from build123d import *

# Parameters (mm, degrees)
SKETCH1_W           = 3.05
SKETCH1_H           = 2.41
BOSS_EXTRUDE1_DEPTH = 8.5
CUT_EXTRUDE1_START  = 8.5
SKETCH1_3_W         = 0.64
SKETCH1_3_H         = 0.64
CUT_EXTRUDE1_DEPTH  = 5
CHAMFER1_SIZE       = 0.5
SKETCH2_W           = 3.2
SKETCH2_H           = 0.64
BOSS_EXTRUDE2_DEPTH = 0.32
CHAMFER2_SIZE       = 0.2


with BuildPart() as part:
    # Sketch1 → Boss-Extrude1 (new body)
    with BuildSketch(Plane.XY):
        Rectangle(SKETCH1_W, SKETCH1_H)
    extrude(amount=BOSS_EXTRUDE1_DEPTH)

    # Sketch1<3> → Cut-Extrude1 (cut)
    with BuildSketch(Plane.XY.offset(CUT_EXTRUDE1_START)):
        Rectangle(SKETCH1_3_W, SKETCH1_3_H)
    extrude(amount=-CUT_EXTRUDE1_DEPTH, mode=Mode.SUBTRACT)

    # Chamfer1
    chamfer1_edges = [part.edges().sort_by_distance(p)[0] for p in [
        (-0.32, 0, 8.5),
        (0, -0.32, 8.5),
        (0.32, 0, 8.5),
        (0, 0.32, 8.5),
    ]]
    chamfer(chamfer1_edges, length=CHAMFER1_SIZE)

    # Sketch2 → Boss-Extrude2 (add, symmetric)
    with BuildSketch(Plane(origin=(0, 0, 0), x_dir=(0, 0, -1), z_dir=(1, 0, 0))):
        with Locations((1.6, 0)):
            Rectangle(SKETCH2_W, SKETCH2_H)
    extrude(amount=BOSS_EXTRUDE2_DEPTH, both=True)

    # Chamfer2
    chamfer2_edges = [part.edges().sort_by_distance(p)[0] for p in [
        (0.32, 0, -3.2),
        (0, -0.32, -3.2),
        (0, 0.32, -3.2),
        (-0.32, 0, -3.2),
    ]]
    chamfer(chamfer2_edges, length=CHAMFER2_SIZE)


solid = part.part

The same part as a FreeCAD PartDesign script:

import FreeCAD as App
import Part
import Sketcher

V = App.Vector
Q = App.Units.Quantity


def edges_at(feature, points):
    """Names of the edges that pass closest to the given points."""
    edges = feature.Shape.Edges
    near = lambda p: min(range(len(edges)), key=lambda i: edges[i].distToShape(Part.Vertex(*p))[0])
    return sorted({f"Edge{near(p) + 1}" for p in points})


def add_polygon(sketch, points):
    """Adds a closed chain of lines whose ends are joined by coincident constraints."""
    first, n = sketch.GeometryCount, len(points)
    for a, b in zip(points, points[1:] + points[:1]):
        sketch.addGeometry(Part.LineSegment(App.Vector(*a, 0), App.Vector(*b, 0)), False)
    for i in range(n):
        sketch.addConstraint(Sketcher.Constraint("Coincident", first + i, 2, first + (i + 1) % n, 1))

doc = App.newDocument("Part")
body = doc.addObject("PartDesign::Body", "Body")

# Sketch on XY plane
sketch1 = body.newObject("Sketcher::SketchObject", "Sketch")
sketch1.AttachmentSupport = (doc.getObject("XY_Plane"), [""])
sketch1.MapMode = "FlatFace"
add_polygon(sketch1, [(-1.525, 1.205), (-1.525, -1.205), (1.525, -1.205), (1.525, 1.205)])  # lines 0-3
sketch1.addConstraint(Sketcher.Constraint("Vertical", 0))
sketch1.addConstraint(Sketcher.Constraint("Horizontal", 1))
sketch1.addConstraint(Sketcher.Constraint("Vertical", 2))
sketch1.addConstraint(Sketcher.Constraint("Horizontal", 3))
sketch1.addConstraint(Sketcher.Constraint("Symmetric", 0, 2, 2, 2, -1, 1))
sketch1.addConstraint(Sketcher.Constraint("DistanceX", 1, 1, 1, 2, Q("3.05 mm")))
sketch1.addConstraint(Sketcher.Constraint("DistanceY", 0, 2, 0, 1, Q("2.41 mm")))
pad1 = body.newObject("PartDesign::Pad", "Pad")
pad1.Profile = sketch1
pad1.Length = 8.5

# Sketch on XY plane
sketch2 = body.newObject("Sketcher::SketchObject", "Sketch001")
sketch2.AttachmentSupport = (doc.getObject("XY_Plane"), [""])
sketch2.MapMode = "FlatFace"
sketch2.AttachmentOffset = App.Placement(V(0, 0, 8.5), App.Rotation())
add_polygon(sketch2, [(-0.32, 0.32), (-0.32, -0.32), (0.32, -0.32), (0.32, 0.32)])  # lines 0-3
sketch2.addConstraint(Sketcher.Constraint("Vertical", 0))
sketch2.addConstraint(Sketcher.Constraint("Horizontal", 1))
sketch2.addConstraint(Sketcher.Constraint("Vertical", 2))
sketch2.addConstraint(Sketcher.Constraint("Horizontal", 3))
sketch2.addConstraint(Sketcher.Constraint("Symmetric", 0, 2, 2, 2, -1, 1))
sketch2.addConstraint(Sketcher.Constraint("Equal", 3, 0))
sketch2.addConstraint(Sketcher.Constraint("DistanceX", 1, 1, 1, 2, Q("0.64 mm")))
pocket1 = body.newObject("PartDesign::Pocket", "Pocket")
pocket1.Profile = sketch2
pocket1.Length = 5
doc.recompute()

chamfer = body.newObject("PartDesign::Chamfer", "Chamfer")
chamfer.Base = (pocket1, edges_at(pocket1, [
    (-0.32, 0, 8.5),
    (0, -0.32, 8.5),
    (0.32, 0, 8.5),
    (0, 0.32, 8.5),
]))
chamfer.Size = 0.5

# Sketch on YZ plane
sketch3 = body.newObject("Sketcher::SketchObject", "Sketch002")
sketch3.AttachmentSupport = (doc.getObject("YZ_Plane"), [""])
sketch3.MapMode = "FlatFace"
add_polygon(sketch3, [(0.32, 0), (-0.32, 0), (-0.32, -3.2), (0.32, -3.2)])  # lines 0-3
sketch3.addConstraint(Sketcher.Constraint("Horizontal", 0))
sketch3.addConstraint(Sketcher.Constraint("Vertical", 1))
sketch3.addConstraint(Sketcher.Constraint("Horizontal", 2))
sketch3.addConstraint(Sketcher.Constraint("Vertical", 3))
sketch3.addConstraint(Sketcher.Constraint("Symmetric", 0, 2, 3, 2, -1, 1))
sketch3.addConstraint(Sketcher.Constraint("DistanceY", 1, 2, 1, 1, Q("3.2 mm")))
sketch3.addConstraint(Sketcher.Constraint("DistanceX", 0, 2, 0, 1, Q("0.64 mm")))
pad2 = body.newObject("PartDesign::Pad", "Pad001")
pad2.Profile = sketch3
pad2.Length = 0.64
pad2.Midplane = True
doc.recompute()

chamfer2 = body.newObject("PartDesign::Chamfer", "Chamfer001")
chamfer2.Base = (pad2, edges_at(pad2, [
    (0.32, 0, -3.2),
    (0, -0.32, -3.2),
    (0, 0.32, -3.2),
    (-0.32, 0, -3.2),
]))
chamfer2.Size = 0.2

doc.recompute()
